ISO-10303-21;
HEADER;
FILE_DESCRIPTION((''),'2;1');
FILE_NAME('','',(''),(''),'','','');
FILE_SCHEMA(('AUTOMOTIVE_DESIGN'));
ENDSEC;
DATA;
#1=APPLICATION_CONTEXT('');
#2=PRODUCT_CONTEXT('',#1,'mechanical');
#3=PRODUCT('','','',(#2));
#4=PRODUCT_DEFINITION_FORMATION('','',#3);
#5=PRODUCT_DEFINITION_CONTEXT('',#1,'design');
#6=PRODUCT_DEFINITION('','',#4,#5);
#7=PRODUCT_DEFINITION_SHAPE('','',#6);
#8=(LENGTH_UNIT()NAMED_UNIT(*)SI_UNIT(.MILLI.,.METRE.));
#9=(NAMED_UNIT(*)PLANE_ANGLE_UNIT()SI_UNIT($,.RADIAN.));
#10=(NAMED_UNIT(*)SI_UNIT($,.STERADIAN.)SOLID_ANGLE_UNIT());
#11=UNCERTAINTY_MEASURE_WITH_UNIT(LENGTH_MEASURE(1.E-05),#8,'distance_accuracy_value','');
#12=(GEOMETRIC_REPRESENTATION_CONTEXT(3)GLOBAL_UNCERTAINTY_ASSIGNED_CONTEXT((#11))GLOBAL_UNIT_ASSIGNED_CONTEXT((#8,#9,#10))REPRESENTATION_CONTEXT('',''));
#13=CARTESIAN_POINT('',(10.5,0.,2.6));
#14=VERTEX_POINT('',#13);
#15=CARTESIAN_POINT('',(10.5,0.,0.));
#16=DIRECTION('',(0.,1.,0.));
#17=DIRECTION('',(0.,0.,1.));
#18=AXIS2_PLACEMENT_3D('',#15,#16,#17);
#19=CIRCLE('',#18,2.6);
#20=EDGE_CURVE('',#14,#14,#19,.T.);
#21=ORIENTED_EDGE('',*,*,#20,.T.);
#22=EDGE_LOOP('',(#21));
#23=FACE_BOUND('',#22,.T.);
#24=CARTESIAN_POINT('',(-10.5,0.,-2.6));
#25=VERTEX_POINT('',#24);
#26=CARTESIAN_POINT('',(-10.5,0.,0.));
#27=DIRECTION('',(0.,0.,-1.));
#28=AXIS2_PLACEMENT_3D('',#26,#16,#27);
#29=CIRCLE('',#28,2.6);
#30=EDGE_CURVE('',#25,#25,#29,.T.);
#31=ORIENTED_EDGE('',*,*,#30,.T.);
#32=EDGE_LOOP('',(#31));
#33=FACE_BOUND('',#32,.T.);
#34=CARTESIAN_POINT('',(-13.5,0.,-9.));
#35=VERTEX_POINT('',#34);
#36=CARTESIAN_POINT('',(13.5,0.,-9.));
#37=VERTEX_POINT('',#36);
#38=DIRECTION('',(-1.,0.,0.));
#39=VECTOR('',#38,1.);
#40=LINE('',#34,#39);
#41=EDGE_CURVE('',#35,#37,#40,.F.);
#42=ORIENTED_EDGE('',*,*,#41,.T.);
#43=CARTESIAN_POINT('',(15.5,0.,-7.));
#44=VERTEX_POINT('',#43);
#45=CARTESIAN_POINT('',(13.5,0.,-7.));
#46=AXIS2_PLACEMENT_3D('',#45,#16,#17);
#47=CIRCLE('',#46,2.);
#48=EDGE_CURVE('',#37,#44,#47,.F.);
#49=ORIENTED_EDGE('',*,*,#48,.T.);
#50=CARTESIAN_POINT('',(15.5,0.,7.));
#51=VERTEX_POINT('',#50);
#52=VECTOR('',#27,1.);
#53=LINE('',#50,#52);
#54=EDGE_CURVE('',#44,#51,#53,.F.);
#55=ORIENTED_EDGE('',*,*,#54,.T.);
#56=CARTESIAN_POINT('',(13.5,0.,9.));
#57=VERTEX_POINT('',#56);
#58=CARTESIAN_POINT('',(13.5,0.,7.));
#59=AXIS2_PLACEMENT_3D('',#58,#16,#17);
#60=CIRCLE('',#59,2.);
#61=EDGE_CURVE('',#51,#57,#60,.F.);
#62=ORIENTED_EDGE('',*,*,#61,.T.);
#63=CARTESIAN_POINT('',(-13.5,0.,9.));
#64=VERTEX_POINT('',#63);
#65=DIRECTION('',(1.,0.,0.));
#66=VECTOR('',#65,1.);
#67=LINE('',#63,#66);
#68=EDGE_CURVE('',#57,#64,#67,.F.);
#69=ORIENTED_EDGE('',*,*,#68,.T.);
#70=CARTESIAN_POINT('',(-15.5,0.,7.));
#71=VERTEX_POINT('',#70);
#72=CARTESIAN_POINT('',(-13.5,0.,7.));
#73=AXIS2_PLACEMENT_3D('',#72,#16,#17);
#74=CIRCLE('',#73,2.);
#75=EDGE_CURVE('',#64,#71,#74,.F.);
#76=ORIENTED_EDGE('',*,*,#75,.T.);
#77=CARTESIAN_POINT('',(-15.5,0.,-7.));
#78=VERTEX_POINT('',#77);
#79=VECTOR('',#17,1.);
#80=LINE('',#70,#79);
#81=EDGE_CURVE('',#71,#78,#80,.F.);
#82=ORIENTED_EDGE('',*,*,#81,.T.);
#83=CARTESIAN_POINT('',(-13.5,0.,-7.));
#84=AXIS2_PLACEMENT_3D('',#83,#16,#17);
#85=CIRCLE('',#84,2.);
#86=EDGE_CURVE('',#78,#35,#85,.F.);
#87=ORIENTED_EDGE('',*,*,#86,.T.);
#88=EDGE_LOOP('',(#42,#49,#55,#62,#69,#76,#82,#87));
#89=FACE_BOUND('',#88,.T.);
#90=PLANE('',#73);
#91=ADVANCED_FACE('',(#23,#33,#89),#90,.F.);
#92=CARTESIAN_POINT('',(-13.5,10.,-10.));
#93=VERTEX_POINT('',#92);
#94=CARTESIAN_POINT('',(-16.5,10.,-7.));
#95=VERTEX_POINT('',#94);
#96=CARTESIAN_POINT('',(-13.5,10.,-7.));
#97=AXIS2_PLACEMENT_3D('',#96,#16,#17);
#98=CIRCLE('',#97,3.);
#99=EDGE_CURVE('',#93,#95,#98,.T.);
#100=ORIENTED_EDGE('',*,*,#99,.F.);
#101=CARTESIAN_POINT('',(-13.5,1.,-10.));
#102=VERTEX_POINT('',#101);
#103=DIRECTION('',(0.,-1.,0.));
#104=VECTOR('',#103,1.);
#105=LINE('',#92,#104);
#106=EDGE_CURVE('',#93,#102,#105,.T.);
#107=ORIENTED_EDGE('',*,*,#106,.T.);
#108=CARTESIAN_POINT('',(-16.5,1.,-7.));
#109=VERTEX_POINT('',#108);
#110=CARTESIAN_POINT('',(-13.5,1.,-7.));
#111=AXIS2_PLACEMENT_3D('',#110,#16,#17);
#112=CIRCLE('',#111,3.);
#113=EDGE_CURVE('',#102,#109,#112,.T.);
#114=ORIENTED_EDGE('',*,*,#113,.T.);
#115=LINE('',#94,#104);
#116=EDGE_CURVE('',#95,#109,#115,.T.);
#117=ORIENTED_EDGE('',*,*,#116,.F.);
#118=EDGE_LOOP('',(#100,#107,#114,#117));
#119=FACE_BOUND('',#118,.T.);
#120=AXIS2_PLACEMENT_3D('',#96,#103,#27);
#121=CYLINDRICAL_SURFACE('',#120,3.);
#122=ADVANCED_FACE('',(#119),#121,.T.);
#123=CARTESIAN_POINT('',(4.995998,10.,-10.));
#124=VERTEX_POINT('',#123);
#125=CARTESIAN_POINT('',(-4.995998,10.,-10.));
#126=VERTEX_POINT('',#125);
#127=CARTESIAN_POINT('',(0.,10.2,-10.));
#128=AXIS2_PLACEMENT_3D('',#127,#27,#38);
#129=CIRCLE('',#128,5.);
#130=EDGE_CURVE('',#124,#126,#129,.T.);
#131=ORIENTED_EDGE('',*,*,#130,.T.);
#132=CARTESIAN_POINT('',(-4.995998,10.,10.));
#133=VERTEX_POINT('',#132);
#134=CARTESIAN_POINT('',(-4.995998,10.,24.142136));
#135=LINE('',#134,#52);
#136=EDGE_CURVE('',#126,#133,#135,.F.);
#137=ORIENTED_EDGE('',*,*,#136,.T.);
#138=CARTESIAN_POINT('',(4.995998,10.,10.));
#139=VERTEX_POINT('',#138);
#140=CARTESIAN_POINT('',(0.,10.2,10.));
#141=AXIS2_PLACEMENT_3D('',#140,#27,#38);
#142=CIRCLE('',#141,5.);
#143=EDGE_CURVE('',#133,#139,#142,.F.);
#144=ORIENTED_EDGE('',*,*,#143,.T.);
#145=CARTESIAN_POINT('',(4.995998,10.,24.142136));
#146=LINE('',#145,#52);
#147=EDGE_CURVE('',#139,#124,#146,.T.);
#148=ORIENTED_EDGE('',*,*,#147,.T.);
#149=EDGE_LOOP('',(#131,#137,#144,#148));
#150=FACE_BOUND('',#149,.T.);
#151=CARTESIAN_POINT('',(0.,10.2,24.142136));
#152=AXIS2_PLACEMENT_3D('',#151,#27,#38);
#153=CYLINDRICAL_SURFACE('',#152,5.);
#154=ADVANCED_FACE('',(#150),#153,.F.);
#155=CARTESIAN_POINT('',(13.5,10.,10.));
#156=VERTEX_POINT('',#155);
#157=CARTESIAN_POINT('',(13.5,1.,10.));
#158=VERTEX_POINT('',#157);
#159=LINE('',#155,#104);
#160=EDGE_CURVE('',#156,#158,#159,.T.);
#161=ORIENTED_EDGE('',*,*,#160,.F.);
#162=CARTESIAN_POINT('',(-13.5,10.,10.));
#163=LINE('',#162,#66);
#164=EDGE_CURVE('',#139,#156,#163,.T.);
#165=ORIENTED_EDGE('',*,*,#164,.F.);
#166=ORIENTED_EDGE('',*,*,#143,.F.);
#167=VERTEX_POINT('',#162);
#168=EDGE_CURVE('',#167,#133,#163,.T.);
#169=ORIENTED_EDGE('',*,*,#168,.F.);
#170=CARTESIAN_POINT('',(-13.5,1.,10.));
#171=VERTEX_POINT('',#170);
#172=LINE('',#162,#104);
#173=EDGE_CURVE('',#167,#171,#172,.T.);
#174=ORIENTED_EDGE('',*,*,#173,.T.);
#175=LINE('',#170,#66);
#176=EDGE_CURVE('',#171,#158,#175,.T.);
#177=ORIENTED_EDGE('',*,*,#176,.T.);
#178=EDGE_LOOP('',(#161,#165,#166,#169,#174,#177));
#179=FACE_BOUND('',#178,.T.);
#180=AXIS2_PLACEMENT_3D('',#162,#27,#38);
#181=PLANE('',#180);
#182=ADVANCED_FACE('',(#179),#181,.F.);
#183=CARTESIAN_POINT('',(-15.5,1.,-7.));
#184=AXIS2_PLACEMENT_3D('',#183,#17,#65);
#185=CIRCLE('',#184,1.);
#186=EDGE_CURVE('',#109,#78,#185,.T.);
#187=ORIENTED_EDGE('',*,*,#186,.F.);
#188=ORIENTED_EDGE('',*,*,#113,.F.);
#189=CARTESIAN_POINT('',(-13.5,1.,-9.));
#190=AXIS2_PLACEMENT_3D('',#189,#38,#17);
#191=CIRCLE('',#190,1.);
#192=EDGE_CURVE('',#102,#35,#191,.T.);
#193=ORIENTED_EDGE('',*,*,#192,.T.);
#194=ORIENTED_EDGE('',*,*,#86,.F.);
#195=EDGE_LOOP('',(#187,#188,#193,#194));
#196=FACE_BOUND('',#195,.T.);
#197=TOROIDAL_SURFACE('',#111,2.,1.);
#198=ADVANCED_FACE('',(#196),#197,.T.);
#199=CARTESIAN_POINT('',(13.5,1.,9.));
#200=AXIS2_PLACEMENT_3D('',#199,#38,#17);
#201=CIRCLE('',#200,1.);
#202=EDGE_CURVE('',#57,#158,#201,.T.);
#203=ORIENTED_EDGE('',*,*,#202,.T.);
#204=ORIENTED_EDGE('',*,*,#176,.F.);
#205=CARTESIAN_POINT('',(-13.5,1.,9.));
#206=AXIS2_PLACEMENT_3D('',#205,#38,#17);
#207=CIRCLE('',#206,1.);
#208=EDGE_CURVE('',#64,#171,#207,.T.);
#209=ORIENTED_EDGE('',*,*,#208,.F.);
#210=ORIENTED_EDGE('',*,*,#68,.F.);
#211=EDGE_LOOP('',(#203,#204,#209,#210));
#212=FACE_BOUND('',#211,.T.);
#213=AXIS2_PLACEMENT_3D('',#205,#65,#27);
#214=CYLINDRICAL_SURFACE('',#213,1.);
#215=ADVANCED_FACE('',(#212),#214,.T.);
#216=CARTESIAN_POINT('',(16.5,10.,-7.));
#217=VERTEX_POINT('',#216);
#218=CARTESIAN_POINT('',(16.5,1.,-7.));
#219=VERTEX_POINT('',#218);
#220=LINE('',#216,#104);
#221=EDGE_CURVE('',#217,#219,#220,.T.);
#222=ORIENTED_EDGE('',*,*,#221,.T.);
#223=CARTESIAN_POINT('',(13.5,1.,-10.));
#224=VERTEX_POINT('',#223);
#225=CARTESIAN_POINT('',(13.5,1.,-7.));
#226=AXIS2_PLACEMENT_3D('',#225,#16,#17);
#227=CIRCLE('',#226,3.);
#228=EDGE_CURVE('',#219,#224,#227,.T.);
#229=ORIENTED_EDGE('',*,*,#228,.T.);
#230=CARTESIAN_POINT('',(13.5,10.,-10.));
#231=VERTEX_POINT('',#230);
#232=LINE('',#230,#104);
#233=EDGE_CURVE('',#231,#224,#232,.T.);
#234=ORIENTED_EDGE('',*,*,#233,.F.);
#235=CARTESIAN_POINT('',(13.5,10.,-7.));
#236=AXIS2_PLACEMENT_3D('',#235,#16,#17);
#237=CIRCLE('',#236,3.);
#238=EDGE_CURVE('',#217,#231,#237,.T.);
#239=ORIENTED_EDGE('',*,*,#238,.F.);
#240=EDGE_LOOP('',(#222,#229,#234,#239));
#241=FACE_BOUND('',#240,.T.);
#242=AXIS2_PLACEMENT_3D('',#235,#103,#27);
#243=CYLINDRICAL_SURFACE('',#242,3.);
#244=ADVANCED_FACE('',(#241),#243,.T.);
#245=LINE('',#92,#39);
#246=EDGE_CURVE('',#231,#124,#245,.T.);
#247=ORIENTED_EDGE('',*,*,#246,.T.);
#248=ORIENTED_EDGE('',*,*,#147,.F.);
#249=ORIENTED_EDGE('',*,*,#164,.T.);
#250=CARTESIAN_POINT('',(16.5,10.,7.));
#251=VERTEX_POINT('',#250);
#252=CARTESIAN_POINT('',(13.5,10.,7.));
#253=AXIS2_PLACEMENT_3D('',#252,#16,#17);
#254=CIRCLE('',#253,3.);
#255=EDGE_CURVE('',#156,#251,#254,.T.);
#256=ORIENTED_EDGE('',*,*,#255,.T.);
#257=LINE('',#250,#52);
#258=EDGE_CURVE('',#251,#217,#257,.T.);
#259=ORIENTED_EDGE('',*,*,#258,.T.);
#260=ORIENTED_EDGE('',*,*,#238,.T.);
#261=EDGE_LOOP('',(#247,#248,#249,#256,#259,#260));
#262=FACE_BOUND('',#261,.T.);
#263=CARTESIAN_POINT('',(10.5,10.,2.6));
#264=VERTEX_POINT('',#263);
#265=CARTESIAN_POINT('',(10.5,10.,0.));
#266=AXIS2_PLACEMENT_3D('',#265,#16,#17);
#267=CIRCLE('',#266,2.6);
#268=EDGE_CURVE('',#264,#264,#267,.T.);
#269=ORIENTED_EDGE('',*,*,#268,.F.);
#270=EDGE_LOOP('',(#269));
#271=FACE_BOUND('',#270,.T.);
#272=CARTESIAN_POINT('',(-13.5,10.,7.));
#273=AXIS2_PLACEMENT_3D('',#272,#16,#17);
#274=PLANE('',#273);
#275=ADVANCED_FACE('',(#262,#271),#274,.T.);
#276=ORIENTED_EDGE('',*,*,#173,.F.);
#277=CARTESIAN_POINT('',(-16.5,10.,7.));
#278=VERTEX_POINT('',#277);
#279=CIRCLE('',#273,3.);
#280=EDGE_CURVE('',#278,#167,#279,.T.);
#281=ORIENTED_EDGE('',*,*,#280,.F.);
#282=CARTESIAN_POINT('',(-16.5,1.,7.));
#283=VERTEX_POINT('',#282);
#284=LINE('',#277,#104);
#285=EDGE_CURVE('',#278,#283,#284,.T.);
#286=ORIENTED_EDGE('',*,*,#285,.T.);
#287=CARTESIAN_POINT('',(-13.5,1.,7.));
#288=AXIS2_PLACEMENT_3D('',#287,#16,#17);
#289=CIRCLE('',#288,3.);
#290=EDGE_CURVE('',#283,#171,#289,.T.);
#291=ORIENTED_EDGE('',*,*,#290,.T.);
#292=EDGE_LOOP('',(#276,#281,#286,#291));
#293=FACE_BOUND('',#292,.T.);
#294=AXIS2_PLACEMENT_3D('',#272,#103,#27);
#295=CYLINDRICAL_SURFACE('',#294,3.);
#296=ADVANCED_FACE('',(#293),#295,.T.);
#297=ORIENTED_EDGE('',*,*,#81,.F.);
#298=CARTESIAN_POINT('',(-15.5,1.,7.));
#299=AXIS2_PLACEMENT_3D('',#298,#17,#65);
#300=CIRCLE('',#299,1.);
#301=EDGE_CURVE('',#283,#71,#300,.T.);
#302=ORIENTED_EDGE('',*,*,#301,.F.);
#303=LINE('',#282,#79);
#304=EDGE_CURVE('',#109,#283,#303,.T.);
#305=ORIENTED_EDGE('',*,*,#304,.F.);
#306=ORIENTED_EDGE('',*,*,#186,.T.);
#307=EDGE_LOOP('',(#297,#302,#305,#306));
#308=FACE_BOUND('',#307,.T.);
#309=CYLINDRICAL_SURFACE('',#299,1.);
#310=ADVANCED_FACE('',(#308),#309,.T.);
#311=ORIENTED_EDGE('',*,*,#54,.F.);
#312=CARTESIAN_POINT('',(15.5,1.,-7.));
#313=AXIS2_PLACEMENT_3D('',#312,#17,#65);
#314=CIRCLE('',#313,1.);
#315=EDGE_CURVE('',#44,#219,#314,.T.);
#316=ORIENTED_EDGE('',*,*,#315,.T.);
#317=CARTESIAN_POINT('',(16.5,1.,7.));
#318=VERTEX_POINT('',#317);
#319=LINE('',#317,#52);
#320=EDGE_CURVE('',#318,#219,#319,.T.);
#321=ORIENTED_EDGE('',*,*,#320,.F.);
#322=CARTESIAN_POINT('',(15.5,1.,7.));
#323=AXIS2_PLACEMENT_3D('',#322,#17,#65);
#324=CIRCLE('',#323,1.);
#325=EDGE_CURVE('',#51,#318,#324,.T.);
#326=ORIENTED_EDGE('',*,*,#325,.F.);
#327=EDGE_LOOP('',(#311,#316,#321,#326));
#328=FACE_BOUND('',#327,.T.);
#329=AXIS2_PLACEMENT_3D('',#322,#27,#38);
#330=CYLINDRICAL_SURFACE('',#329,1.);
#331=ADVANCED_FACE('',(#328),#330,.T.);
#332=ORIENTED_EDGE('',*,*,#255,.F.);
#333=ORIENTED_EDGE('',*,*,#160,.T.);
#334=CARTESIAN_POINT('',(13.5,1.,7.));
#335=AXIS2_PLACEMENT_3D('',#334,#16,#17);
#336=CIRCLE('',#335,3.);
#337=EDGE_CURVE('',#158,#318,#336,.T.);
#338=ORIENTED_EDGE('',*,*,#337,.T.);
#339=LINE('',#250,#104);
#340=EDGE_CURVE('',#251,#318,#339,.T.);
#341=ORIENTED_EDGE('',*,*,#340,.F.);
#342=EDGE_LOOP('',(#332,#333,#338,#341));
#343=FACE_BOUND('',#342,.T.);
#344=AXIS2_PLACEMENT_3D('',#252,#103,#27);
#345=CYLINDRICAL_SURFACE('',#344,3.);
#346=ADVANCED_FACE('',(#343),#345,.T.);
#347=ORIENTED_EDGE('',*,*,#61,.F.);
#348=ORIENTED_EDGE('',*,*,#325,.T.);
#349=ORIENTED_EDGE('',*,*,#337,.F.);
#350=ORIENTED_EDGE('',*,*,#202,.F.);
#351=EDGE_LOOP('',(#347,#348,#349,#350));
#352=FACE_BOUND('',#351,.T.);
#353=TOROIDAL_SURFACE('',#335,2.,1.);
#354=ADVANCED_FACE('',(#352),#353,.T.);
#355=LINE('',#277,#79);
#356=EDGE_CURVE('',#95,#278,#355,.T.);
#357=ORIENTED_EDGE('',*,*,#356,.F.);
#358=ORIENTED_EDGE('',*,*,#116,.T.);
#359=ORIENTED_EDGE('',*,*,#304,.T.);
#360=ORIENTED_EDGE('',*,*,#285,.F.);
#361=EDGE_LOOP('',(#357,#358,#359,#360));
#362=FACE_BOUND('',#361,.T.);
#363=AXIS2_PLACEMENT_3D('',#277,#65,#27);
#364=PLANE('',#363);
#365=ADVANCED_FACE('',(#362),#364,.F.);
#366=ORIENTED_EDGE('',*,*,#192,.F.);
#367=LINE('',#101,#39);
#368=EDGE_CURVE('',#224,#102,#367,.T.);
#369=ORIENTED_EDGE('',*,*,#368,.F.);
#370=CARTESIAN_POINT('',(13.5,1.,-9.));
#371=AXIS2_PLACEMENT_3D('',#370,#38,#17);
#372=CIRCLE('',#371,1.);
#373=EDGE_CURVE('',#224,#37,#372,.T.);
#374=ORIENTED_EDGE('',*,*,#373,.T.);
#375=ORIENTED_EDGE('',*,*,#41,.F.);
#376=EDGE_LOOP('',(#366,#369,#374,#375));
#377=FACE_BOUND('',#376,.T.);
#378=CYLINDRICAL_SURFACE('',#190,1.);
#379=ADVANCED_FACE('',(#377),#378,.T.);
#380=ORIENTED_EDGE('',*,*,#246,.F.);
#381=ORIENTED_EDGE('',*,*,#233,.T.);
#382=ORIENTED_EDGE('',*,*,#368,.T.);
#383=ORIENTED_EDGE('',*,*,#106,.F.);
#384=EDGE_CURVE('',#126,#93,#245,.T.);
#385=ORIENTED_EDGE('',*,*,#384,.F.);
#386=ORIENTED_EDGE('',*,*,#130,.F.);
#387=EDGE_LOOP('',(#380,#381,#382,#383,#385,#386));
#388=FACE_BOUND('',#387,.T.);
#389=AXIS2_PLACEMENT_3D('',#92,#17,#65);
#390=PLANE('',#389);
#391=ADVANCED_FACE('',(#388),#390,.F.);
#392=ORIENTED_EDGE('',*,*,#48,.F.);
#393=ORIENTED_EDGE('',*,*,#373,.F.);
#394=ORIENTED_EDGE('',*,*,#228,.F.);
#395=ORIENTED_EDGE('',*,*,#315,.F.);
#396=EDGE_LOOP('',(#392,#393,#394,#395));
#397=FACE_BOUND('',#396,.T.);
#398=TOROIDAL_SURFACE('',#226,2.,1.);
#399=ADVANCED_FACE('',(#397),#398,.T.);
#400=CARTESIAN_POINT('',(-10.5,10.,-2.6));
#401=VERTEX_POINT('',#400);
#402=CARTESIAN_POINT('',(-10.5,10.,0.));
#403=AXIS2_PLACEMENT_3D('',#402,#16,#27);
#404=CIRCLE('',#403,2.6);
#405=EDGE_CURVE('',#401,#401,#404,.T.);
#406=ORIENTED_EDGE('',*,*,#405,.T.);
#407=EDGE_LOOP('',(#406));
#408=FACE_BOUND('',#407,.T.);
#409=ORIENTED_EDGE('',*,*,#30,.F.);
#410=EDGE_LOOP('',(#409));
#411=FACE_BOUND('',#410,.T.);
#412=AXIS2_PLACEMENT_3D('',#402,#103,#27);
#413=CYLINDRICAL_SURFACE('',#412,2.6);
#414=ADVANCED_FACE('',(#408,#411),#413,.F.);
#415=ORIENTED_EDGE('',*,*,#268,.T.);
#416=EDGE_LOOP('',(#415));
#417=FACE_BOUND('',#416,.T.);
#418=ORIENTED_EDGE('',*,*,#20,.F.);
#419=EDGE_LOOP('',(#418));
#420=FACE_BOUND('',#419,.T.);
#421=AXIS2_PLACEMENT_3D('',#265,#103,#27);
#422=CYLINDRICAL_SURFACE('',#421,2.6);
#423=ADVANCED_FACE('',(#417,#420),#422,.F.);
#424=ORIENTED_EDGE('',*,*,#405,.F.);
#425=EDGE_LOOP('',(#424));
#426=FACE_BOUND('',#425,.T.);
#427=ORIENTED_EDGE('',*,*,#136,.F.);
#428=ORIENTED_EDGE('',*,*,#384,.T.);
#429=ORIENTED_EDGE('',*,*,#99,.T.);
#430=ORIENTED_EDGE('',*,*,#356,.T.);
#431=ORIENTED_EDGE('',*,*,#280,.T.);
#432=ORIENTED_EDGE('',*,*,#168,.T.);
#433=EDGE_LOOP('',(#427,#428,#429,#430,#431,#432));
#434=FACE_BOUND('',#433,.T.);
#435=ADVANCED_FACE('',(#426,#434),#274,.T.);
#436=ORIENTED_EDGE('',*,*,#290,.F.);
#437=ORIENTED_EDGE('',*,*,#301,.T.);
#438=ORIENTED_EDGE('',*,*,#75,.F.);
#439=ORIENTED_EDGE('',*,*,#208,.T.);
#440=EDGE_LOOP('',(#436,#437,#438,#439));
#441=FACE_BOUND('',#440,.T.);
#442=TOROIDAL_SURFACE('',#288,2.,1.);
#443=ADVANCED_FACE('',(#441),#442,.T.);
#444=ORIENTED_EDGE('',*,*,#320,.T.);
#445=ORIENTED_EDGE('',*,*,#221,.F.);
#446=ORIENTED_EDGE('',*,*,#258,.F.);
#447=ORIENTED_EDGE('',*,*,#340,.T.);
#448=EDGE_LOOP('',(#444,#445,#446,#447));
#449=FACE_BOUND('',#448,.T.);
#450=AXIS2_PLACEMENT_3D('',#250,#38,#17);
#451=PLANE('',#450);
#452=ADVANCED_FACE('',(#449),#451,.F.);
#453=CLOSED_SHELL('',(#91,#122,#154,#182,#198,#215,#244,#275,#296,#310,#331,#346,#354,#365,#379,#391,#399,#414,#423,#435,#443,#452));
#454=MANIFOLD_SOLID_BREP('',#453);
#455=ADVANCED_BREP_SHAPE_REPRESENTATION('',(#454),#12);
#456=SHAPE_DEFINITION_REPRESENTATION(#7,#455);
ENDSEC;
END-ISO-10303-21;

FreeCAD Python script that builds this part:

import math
import FreeCAD as App
import Part
import Sketcher
Q = App.Units.Quantity


def edges_at(feature, points):
    """Names of the edges that pass closest to the given points."""
    edges = feature.Shape.Edges
    near = lambda p: min(range(len(edges)), key=lambda i: edges[i].distToShape(Part.Vertex(*p))[0])
    return sorted({f"Edge{near(p) + 1}" for p in points})

doc = App.newDocument("Part")
body = doc.addObject("PartDesign::Body", "Body")

sketch1 = doc.addObject("Sketcher::SketchObject", "Sketch")
body.addObject(sketch1)
sketch1.AttachmentSupport = (doc.XZ_Plane, [""])
sketch1.MapMode = "FlatFace"
sketch1.addGeometry([
    Part.LineSegment(App.Vector(-13.5, 10, 0), App.Vector(13.5, 10, 0)),
    Part.ArcOfCircle(Part.Circle(App.Vector(13.5, 7, 0), App.Vector(0, 0, 1), 3), math.radians(0), math.radians(90)),
    Part.LineSegment(App.Vector(16.5, 7, 0), App.Vector(16.5, -7, 0)),
    Part.ArcOfCircle(Part.Circle(App.Vector(13.5, -7, 0), App.Vector(0, 0, 1), 3), math.radians(-90), math.radians(0)),
    Part.LineSegment(App.Vector(13.5, -10, 0), App.Vector(-13.5, -10, 0)),
    Part.ArcOfCircle(Part.Circle(App.Vector(-13.5, -7, 0), App.Vector(0, 0, 1), 3), math.radians(180), math.radians(270)),
    Part.LineSegment(App.Vector(-16.5, -7, 0), App.Vector(-16.5, 7, 0)),
    Part.ArcOfCircle(Part.Circle(App.Vector(-13.5, 7, 0), App.Vector(0, 0, 1), 3), math.radians(90), math.radians(180)),
    Part.Circle(App.Vector(-10.5, 0, 0), App.Vector(0, 0, 1), 2.6),
    Part.Circle(App.Vector(10.5, 0, 0), App.Vector(0, 0, 1), 2.6),
], False)
sketch1.addConstraint([
    Sketcher.Constraint("Tangent", 0, 2, 1, 2),
    Sketcher.Constraint("Tangent", 1, 1, 2, 1),
    Sketcher.Constraint("Tangent", 2, 2, 3, 2),
    Sketcher.Constraint("Tangent", 3, 1, 4, 1),
    Sketcher.Constraint("Tangent", 4, 2, 5, 2),
    Sketcher.Constraint("Tangent", 5, 1, 6, 1),
    Sketcher.Constraint("Tangent", 6, 2, 7, 2),
    Sketcher.Constraint("Tangent", 7, 1, 0, 1),
    Sketcher.Constraint("Horizontal", 0),
    Sketcher.Constraint("Vertical", 2),
    Sketcher.Constraint("Horizontal", 4),
    Sketcher.Constraint("Vertical", 6),
    Sketcher.Constraint("Equal", 1, 3),
    Sketcher.Constraint("Equal", 3, 5),
    Sketcher.Constraint("Equal", 5, 7),
    Sketcher.Constraint("Equal", 8, 9),
    Sketcher.Constraint("Symmetric", 1, 3, 5, 3, -1, 1),
    Sketcher.Constraint("Symmetric", 8, 3, 9, 3, -1, 1),
    Sketcher.Constraint("PointOnObject", 8, 3, -1),
    Sketcher.Constraint("Radius", 1, Q("3 mm")),
    Sketcher.Constraint("Diameter", 8, Q("5.2 mm")),
    Sketcher.Constraint("DistanceX", 0, 1, 0, 2, Q("27 mm")),
    Sketcher.Constraint("DistanceY", 2, 2, 2, 1, Q("14 mm")),
    Sketcher.Constraint("DistanceX", 5, 3, 8, 3, Q("3 mm")),
])
pad1 = doc.addObject("PartDesign::Pad", "Pad")
body.addObject(pad1)
pad1.Profile = sketch1
pad1.Length = 10
pad1.Reversed = True

sketch2 = doc.addObject("Sketcher::SketchObject", "Sketch001")
body.addObject(sketch2)
sketch2.AttachmentSupport = (doc.XY_Plane, [""])
sketch2.MapMode = "FlatFace"
sketch2.AttachmentOffset = App.Placement(App.Vector(0, 0, -10), App.Rotation())
sketch2.addGeometry(Part.Circle(App.Vector(0, 10.2, 0), App.Vector(0, 0, 1), 5), False)
sketch2.addConstraint([
    Sketcher.Constraint("PointOnObject", 0, 3, -2),
    Sketcher.Constraint("Diameter", 0, Q("10 mm")),
    Sketcher.Constraint("DistanceY", -1, 1, 0, 3, Q("10.2 mm")),
])
pocket1 = doc.addObject("PartDesign::Pocket", "Pocket")
body.addObject(pocket1)
pocket1.Profile = sketch2
pocket1.Length = 20
pocket1.Reversed = True
doc.recompute()

fillet = doc.addObject("PartDesign::Fillet", "Fillet")
body.addObject(fillet)
fillet.Base = (pocket1, edges_at(pocket1, [
    (0, 0, 10),
    (-15.621, 0, 9.121),
    (-16.5, 0, 0),
    (-15.621, 0, -9.121),
    (0, 0, -10),
    (15.621, 0, -9.121),
    (16.5, 0, 0),
    (15.621, 0, 9.121),
]))
fillet.Radius = 1

doc.recompute()
